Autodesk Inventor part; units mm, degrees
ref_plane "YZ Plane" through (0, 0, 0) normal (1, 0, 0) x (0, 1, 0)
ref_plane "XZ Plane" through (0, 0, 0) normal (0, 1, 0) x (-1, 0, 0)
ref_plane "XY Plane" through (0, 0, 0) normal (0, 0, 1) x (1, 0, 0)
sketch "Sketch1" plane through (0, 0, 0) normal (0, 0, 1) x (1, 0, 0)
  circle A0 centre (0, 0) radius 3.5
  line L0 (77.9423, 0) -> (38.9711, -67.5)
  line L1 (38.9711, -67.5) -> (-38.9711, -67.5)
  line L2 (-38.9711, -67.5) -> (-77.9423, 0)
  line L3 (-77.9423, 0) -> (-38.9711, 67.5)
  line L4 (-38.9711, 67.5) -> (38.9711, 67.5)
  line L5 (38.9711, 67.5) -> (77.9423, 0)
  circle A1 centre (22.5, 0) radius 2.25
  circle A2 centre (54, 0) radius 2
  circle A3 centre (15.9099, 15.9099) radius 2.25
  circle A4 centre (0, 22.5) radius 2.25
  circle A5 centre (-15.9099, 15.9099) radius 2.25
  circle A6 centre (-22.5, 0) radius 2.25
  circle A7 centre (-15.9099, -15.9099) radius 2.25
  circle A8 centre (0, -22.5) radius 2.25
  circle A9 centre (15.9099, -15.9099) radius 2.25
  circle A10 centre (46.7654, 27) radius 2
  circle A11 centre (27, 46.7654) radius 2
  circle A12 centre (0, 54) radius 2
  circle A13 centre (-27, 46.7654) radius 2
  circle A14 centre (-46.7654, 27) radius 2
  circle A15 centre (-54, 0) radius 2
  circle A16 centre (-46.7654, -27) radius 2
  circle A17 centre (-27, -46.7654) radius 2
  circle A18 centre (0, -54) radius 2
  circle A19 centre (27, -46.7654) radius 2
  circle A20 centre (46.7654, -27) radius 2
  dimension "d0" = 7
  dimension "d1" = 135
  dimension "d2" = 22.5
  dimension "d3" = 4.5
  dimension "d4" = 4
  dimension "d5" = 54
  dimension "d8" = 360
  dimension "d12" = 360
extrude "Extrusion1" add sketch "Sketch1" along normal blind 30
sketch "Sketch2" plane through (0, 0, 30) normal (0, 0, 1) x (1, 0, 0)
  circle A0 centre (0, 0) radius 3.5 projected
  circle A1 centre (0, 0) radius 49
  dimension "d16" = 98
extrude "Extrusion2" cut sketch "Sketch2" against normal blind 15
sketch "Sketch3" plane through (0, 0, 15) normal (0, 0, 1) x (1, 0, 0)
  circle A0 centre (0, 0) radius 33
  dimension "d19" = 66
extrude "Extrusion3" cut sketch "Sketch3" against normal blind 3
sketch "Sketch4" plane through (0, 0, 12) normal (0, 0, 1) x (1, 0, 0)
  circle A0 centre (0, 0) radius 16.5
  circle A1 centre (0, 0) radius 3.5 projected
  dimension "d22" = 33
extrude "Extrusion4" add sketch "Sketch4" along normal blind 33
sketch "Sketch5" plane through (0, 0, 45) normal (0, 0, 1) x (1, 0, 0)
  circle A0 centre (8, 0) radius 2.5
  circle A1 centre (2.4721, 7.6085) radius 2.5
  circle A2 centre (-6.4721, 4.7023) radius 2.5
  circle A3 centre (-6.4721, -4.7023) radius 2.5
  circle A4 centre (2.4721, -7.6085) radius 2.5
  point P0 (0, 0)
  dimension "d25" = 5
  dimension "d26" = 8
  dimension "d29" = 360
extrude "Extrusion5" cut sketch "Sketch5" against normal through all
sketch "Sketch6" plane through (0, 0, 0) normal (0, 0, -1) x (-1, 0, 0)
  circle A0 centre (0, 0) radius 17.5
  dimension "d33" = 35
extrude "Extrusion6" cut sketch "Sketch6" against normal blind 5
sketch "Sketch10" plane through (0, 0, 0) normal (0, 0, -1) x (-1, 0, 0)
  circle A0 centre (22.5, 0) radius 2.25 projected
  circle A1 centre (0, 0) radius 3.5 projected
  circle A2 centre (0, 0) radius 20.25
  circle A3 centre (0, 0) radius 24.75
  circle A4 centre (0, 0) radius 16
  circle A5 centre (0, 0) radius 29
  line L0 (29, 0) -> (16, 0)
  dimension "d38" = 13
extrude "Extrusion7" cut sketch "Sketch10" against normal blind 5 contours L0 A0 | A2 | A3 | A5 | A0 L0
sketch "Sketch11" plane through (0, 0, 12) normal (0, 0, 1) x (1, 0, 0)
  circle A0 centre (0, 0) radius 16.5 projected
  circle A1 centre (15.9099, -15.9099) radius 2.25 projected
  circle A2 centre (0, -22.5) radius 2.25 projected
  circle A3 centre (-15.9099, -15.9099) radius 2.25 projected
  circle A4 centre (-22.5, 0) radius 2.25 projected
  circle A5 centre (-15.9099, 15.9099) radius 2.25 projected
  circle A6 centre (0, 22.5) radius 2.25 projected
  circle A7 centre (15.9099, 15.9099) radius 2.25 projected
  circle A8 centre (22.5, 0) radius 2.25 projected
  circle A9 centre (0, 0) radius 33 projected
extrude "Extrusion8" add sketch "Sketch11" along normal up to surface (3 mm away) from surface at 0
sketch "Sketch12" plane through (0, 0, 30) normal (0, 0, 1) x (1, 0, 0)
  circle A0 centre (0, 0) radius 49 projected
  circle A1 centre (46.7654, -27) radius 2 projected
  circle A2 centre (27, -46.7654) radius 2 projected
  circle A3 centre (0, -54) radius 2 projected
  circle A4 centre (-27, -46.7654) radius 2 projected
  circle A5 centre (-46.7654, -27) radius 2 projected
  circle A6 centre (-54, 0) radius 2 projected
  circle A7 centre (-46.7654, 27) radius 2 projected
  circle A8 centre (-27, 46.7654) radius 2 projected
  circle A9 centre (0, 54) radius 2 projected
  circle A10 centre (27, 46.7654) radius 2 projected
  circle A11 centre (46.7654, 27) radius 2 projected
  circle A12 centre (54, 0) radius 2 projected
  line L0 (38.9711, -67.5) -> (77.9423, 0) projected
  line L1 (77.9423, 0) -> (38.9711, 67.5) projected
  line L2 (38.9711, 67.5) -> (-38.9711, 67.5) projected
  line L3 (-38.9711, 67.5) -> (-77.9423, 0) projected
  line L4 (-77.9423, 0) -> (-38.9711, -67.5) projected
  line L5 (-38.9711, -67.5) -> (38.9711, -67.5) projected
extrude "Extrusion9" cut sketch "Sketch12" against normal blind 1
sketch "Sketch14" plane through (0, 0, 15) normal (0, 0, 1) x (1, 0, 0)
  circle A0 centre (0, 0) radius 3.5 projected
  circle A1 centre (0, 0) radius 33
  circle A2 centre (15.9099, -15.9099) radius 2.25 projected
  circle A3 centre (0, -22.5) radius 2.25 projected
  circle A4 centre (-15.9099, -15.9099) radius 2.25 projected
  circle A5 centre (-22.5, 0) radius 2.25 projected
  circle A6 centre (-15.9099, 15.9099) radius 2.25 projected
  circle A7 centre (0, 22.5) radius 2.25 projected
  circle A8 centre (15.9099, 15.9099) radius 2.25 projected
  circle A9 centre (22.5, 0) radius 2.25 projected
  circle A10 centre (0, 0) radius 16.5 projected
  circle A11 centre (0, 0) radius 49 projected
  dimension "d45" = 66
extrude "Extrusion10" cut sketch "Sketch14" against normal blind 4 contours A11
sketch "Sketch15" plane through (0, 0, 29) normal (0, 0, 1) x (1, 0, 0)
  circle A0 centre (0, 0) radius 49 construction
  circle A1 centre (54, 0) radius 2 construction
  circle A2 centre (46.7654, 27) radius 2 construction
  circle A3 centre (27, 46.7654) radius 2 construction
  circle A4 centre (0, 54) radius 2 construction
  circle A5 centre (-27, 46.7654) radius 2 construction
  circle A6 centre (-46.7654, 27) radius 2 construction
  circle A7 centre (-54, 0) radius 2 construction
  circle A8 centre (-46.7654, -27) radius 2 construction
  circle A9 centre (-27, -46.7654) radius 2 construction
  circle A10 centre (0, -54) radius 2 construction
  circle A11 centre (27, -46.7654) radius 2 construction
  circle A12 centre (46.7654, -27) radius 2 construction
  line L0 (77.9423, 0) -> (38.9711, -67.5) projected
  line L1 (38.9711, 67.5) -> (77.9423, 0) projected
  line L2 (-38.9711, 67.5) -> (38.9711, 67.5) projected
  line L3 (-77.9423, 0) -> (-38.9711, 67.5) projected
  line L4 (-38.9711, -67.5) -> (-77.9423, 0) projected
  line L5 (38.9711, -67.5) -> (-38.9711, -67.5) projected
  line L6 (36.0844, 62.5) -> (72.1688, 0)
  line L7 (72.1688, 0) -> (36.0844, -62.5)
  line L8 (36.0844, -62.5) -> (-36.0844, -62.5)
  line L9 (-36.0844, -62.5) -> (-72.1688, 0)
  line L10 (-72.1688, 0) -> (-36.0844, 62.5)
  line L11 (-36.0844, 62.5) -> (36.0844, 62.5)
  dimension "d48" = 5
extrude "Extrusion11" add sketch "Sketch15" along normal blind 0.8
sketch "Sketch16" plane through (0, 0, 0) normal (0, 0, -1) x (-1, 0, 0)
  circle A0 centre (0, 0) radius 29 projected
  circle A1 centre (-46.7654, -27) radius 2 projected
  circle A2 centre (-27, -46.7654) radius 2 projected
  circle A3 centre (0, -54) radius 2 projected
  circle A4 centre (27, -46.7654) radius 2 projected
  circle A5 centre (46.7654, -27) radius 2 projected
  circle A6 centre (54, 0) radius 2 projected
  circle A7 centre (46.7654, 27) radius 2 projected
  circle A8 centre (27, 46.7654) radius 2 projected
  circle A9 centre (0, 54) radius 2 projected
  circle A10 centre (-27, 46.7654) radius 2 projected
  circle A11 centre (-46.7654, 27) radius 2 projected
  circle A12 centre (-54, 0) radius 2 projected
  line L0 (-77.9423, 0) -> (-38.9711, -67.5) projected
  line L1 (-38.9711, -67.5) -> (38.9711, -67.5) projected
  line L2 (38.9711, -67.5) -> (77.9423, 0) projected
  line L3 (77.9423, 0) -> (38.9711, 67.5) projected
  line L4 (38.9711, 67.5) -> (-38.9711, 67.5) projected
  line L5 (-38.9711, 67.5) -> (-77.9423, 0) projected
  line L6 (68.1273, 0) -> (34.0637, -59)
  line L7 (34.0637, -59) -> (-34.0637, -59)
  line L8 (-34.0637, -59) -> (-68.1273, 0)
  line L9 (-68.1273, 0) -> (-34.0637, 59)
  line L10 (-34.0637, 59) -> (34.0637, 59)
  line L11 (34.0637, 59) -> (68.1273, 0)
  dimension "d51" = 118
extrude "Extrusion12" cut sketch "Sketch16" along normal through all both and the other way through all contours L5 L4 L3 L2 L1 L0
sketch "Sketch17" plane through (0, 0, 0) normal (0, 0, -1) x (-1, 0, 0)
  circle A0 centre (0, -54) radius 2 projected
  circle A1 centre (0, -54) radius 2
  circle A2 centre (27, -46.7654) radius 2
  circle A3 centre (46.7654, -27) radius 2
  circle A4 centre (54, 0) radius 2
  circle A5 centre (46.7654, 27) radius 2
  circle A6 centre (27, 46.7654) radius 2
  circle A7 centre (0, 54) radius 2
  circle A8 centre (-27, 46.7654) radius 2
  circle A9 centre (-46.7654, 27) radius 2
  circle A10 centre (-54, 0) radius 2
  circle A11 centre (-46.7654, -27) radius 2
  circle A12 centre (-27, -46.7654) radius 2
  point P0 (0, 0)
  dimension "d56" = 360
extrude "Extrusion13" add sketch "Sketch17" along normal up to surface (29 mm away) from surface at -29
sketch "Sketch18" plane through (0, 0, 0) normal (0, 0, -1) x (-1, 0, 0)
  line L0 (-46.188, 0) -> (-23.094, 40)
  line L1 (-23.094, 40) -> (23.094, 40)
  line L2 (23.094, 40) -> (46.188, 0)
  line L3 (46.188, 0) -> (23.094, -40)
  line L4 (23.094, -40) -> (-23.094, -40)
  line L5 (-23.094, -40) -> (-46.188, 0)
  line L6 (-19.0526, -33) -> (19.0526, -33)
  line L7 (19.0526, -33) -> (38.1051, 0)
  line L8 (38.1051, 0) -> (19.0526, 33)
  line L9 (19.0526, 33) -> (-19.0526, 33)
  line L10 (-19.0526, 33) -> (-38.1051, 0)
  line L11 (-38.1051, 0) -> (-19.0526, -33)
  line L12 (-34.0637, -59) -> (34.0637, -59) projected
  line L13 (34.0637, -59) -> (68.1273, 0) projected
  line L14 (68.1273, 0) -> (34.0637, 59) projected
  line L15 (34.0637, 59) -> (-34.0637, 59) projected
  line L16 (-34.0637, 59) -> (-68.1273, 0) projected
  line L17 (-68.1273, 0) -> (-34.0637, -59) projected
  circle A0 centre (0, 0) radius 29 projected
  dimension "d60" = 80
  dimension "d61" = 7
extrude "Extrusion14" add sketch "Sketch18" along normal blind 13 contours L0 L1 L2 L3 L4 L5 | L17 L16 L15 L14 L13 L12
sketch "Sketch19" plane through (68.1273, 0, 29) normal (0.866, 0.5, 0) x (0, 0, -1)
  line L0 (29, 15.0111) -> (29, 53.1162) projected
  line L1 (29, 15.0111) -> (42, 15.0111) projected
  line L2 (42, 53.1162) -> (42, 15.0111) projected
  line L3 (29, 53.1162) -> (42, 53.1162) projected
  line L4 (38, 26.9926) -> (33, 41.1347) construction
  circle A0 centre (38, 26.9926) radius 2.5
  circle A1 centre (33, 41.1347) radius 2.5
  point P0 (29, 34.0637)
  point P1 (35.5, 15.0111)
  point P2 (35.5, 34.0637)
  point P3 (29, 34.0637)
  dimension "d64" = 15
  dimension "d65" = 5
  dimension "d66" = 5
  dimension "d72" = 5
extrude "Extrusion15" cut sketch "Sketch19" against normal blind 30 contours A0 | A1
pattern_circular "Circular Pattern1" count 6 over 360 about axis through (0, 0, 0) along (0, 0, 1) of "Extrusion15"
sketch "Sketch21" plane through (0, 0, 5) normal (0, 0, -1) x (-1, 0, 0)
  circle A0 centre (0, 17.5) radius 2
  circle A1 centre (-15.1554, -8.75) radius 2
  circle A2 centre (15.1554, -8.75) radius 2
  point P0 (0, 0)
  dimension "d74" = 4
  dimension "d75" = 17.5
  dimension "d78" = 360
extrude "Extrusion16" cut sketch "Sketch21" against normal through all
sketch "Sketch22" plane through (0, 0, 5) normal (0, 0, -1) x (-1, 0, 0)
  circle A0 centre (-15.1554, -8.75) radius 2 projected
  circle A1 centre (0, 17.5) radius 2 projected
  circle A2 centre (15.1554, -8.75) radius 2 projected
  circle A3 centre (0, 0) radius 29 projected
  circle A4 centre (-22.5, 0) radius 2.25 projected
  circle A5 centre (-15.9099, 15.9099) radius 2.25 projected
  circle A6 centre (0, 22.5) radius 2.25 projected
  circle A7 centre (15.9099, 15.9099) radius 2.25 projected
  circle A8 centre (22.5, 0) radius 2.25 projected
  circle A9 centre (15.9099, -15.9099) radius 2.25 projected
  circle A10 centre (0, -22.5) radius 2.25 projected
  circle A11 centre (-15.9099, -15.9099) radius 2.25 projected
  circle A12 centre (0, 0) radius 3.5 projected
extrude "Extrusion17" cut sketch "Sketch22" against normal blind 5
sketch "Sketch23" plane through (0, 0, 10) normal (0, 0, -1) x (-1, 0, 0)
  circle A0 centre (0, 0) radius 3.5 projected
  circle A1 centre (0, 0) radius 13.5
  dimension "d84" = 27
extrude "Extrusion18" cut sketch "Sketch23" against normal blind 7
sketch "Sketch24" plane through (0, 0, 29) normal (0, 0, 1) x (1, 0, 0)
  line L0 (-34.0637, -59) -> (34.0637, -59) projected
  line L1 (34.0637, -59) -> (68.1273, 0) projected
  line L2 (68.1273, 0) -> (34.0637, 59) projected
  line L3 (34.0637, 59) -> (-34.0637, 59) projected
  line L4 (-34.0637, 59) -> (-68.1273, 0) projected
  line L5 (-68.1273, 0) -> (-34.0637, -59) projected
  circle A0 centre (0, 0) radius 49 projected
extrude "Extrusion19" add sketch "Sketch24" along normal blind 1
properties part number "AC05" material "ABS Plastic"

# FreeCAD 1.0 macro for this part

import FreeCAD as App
import Part
import Sketcher
Q = App.Units.Quantity


def add_polygon(sketch, points):
    """Adds a closed chain of lines whose ends are joined by coincident constraints."""
    first, n = sketch.GeometryCount, len(points)
    for a, b in zip(points, points[1:] + points[:1]):
        sketch.addGeometry(Part.LineSegment(App.Vector(*a, 0), App.Vector(*b, 0)), False)
    for i in range(n):
        sketch.addConstraint(Sketcher.Constraint("Coincident", first + i, 2, first + (i + 1) % n, 1))

doc = App.newDocument("Part")
body = doc.addObject("PartDesign::Body", "Body")

sketch1 = body.newObject("Sketcher::SketchObject", "Sketch")
sketch1.AttachmentSupport = (doc.getObject("XY_Plane"), [""])
sketch1.MapMode = "FlatFace"
add_polygon(sketch1, [(39, -67.5), (77.9, 0), (39, 67.5), (-39, 67.5), (-77.9, 0), (-39, -67.5)])
sketch1.addGeometry(Part.Circle(App.Vector(-27, -46.8, 0), App.Vector(0, 0, 1), 2), False)
sketch1.addGeometry(Part.Circle(App.Vector(-46.8, -27, 0), App.Vector(0, 0, 1), 2), False)
sketch1.addGeometry(Part.Circle(App.Vector(-15.9, -15.9, 0), App.Vector(0, 0, 1), 2.2), False)
sketch1.addGeometry(Part.Circle(App.Vector(0, -54, 0), App.Vector(0, 0, 1), 2), False)
sketch1.addGeometry(Part.Circle(App.Vector(27, -46.8, 0), App.Vector(0, 0, 1), 2), False)
sketch1.addGeometry(Part.Circle(App.Vector(0, -22.5, 0), App.Vector(0, 0, 1), 2.2), False)
sketch1.addGeometry(Part.Circle(App.Vector(15.9, -15.9, 0), App.Vector(0, 0, 1), 2.2), False)
sketch1.addGeometry(Part.Circle(App.Vector(46.8, -27, 0), App.Vector(0, 0, 1), 2), False)
sketch1.addGeometry(Part.Circle(App.Vector(-54, 0, 0), App.Vector(0, 0, 1), 2), False)
sketch1.addGeometry(Part.Circle(App.Vector(-46.8, 27, 0), App.Vector(0, 0, 1), 2), False)
sketch1.addGeometry(Part.Circle(App.Vector(-22.5, 0, 0), App.Vector(0, 0, 1), 2.2), False)
sketch1.addGeometry(Part.Circle(App.Vector(-15.9, 15.9, 0), App.Vector(0, 0, 1), 2.2), False)
sketch1.addGeometry(Part.Circle(App.Vector(-27, 46.8, 0), App.Vector(0, 0, 1), 2), False)
sketch1.addGeometry(Part.Circle(App.Vector(0, 0, 0), App.Vector(0, 0, 1), 3.5), False)
sketch1.addGeometry(Part.Circle(App.Vector(15.9, 15.9, 0), App.Vector(0, 0, 1), 2.2), False)
sketch1.addGeometry(Part.Circle(App.Vector(22.5, 0, 0), App.Vector(0, 0, 1), 2.2), False)
sketch1.addGeometry(Part.Circle(App.Vector(0, 22.5, 0), App.Vector(0, 0, 1), 2.2), False)
sketch1.addGeometry(Part.Circle(App.Vector(54, 0, 0), App.Vector(0, 0, 1), 2), False)
sketch1.addGeometry(Part.Circle(App.Vector(46.8, 27, 0), App.Vector(0, 0, 1), 2), False)
sketch1.addGeometry(Part.Circle(App.Vector(27, 46.8, 0), App.Vector(0, 0, 1), 2), False)
sketch1.addGeometry(Part.Circle(App.Vector(0, 54, 0), App.Vector(0, 0, 1), 2), False)
sketch1.addConstraint([
    Sketcher.Constraint("Horizontal", 2),
    Sketcher.Constraint("Horizontal", 5),
    Sketcher.Constraint("Coincident", 19, 3, -1, 1),
    Sketcher.Constraint("Equal", 6, 7),
    Sketcher.Constraint("Equal", 7, 9),
    Sketcher.Constraint("Equal", 9, 10),
    Sketcher.Constraint("Equal", 8, 11),
    Sketcher.Constraint("Equal", 11, 12),
    Sketcher.Constraint("Equal", 10, 13),
    Sketcher.Constraint("Equal", 13, 14),
    Sketcher.Constraint("Equal", 14, 15),
    Sketcher.Constraint("Equal", 12, 16),
    Sketcher.Constraint("Equal", 16, 17),
    Sketcher.Constraint("Equal", 15, 18),
    Sketcher.Constraint("Equal", 17, 20),
    Sketcher.Constraint("Equal", 20, 21),
    Sketcher.Constraint("Equal", 21, 22),
    Sketcher.Constraint("Equal", 18, 23),
    Sketcher.Constraint("Equal", 23, 24),
    Sketcher.Constraint("Equal", 24, 25),
    Sketcher.Constraint("Equal", 25, 26),
    Sketcher.Constraint("Symmetric", 13, 3, 15, 3, -1, 1),
    Sketcher.Constraint("Symmetric", 12, 3, 17, 3, -1, 1),
    Sketcher.Constraint("Symmetric", 10, 3, 18, 3, -1, 1),
    Sketcher.Constraint("Symmetric", 8, 3, 20, 3, -1, 1),
    Sketcher.Constraint("Symmetric", 16, 3, 21, 3, -1, 1),
    Sketcher.Constraint("Symmetric", 11, 3, 22, 3, -1, 1),
    Sketcher.Constraint("Symmetric", 14, 3, 23, 3, -1, 1),
    Sketcher.Constraint("Symmetric", 7, 3, 24, 3, -1, 1),
    Sketcher.Constraint("Symmetric", 6, 3, 25, 3, -1, 1),
    Sketcher.Constraint("Symmetric", 9, 3, 26, 3, -1, 1),
    Sketcher.Constraint("Symmetric", 0, 2, 3, 2, -1, 1),
    Sketcher.Constraint("Symmetric", 1, 2, 4, 2, -1, 1),
    Sketcher.Constraint("Symmetric", 6, 3, 10, 3, -2),
    Sketcher.Constraint("Symmetric", 8, 3, 12, 3, -2),
    Sketcher.Constraint("Symmetric", 7, 3, 13, 3, -2),
    Sketcher.Constraint("PointOnObject", 9, 3, -2),
    Sketcher.Constraint("PointOnObject", 11, 3, -2),
    Sketcher.Constraint("PointOnObject", 14, 3, -1),
    Sketcher.Constraint("PointOnObject", 16, 3, -1),
    Sketcher.Constraint("PointOnObject", 0, 2, -1),
    Sketcher.Constraint("Parallel", 0, 3),
    Sketcher.Constraint("Vertical", 2, 2, 4, 2),
    Sketcher.Constraint("Diameter", 6, 4.0),
    Sketcher.Constraint("Diameter", 19, 7.0),
    Sketcher.Constraint("Diameter", 8, 4.5),
    Sketcher.Constraint("DistanceY", 9, 3, -1, 1, 54.0),
    Sketcher.Constraint("DistanceX", 14, 3, -1, 1, 54.0),
    Sketcher.Constraint("DistanceX", 6, 3, 10, 3, 54.0),
    Sketcher.Constraint("DistanceY", 7, 3, 15, 3, 54.0),
    Sketcher.Constraint("DistanceY", 11, 3, -1, 1, 22.5),
    Sketcher.Constraint("DistanceX", 16, 3, -1, 1, 22.5),
    Sketcher.Constraint("Angle", 0, Q("60 deg")),
    Sketcher.Constraint("DistanceY", 22, 3, 1, 2, 45.0),
    Sketcher.Constraint("DistanceX", 8, 3, -1, 1, 15.91),
    Sketcher.Constraint("DistanceY", 8, 3, -1, 1, 15.91),
    Sketcher.Constraint("DistanceX", 2, 2, 2, 1, 77.9422),
    Sketcher.Constraint("DistanceX", 13, 3, 0, 2, 31.177),
    Sketcher.Constraint("DistanceY", 6, 3, -1, 1, 46.7654),
])
pad1 = body.newObject("PartDesign::Pad", "Pad")
pad1.Profile = sketch1
pad1.Length = 30

sketch2 = body.newObject("Sketcher::SketchObject", "Sketch001")
sketch2.AttachmentSupport = (doc.getObject("XY_Plane"), [""])
sketch2.MapMode = "FlatFace"
sketch2.AttachmentOffset = App.Placement(App.Vector(0, 0, 30), App.Rotation())
sketch2.addGeometry([
    Part.Circle(App.Vector(0, 0, 0), App.Vector(0, 0, 1), 49),
    Part.Circle(App.Vector(0, 0, 0), App.Vector(0, 0, 1), 3.5),
], False)
sketch2.addConstraint([
    Sketcher.Constraint("Coincident", 0, 3, -1, 1),
    Sketcher.Constraint("Coincident", 1, 3, -1, 1),
    Sketcher.Constraint("Diameter", 0, 98.0),
    Sketcher.Constraint("Diameter", 1, 7.0),
])
pocket1 = body.newObject("PartDesign::Pocket", "Pocket")
pocket1.Profile = sketch2
pocket1.Length = 15

sketch3 = body.newObject("Sketcher::SketchObject", "Sketch002")
sketch3.AttachmentSupport = (doc.getObject("XY_Plane"), [""])
sketch3.MapMode = "FlatFace"
sketch3.AttachmentOffset = App.Placement(App.Vector(0, 0, 15), App.Rotation())
sketch3.addGeometry(Part.Circle(App.Vector(0, 0, 0), App.Vector(0, 0, 1), 33), False)
sketch3.addConstraint([
    Sketcher.Constraint("Coincident", 0, 3, -1, 1),
    Sketcher.Constraint("Diameter", 0, 66.0),
])
pocket2 = body.newObject("PartDesign::Pocket", "Pocket001")
pocket2.Profile = sketch3
pocket2.Length = 3

sketch4 = body.newObject("Sketcher::SketchObject", "Sketch003")
sketch4.AttachmentSupport = (doc.getObject("XY_Plane"), [""])
sketch4.MapMode = "FlatFace"
sketch4.AttachmentOffset = App.Placement(App.Vector(0, 0, 12), App.Rotation())
sketch4.addGeometry([
    Part.Circle(App.Vector(0, 0, 0), App.Vector(0, 0, 1), 16.5),
    Part.Circle(App.Vector(0, 0, 0), App.Vector(0, 0, 1), 3.5),
], False)
sketch4.addConstraint([
    Sketcher.Constraint("Coincident", 0, 3, -1, 1),
    Sketcher.Constraint("Coincident", 1, 3, -1, 1),
    Sketcher.Constraint("Diameter", 0, 33.0),
    Sketcher.Constraint("Diameter", 1, 7.0),
])
pad2 = body.newObject("PartDesign::Pad", "Pad001")
pad2.Profile = sketch4
pad2.Length = 33

sketch5 = body.newObject("Sketcher::SketchObject", "Sketch004")
sketch5.AttachmentSupport = (doc.getObject("XY_Plane"), [""])
sketch5.MapMode = "FlatFace"
sketch5.AttachmentOffset = App.Placement(App.Vector(0, 0, 45), App.Rotation())
sketch5.addGeometry([
    Part.Circle(App.Vector(8, 0, 0), App.Vector(0, 0, 1), 2.5),
    Part.Circle(App.Vector(2.5, 7.6, 0), App.Vector(0, 0, 1), 2.5),
    Part.Circle(App.Vector(-6.5, 4.7, 0), App.Vector(0, 0, 1), 2.5),
    Part.Circle(App.Vector(-6.5, -4.7, 0), App.Vector(0, 0, 1), 2.5),
    Part.Circle(App.Vector(2.5, -7.6, 0), App.Vector(0, 0, 1), 2.5),
], False)
sketch5.addConstraint([
    Sketcher.Constraint("Equal", 0, 1),
    Sketcher.Constraint("Equal", 1, 2),
    Sketcher.Constraint("Equal", 2, 3),
    Sketcher.Constraint("Equal", 3, 4),
    Sketcher.Constraint("Symmetric", 2, 3, 3, 3, -1),
    Sketcher.Constraint("Symmetric", 1, 3, 4, 3, -1),
    Sketcher.Constraint("PointOnObject", 0, 3, -1),
    Sketcher.Constraint("Diameter", 0, 5.0),
    Sketcher.Constraint("DistanceX", -1, 1, 0, 3, 8.0),
    Sketcher.Constraint("DistanceX", -1, 1, 1, 3, 2.472),
    Sketcher.Constraint("DistanceX", 2, 3, -1, 1, 6.472),
    Sketcher.Constraint("DistanceY", 4, 3, 1, 3, 15.217),
    Sketcher.Constraint("DistanceY", -1, 1, 2, 3, 4.7023),
])
pocket3 = body.newObject("PartDesign::Pocket", "Pocket002")
pocket3.Profile = sketch5
pocket3.Type = "ThroughAll"

sketch6 = body.newObject("Sketcher::SketchObject", "Sketch005")
sketch6.AttachmentSupport = (doc.getObject("XY_Plane"), [""])
sketch6.MapMode = "FlatFace"
sketch6.addGeometry(Part.Circle(App.Vector(0, 0, 0), App.Vector(0, 0, 1), 18), False)
sketch6.addConstraint([
    Sketcher.Constraint("Coincident", 0, 3, -1, 1),
    Sketcher.Constraint("Diameter", 0, 35.0),
])
pocket4 = body.newObject("PartDesign::Pocket", "Pocket003")
pocket4.Profile = sketch6
pocket4.Length = 5
pocket4.Reversed = True

sketch7 = body.newObject("Sketcher::SketchObject", "Sketch006")
sketch7.AttachmentSupport = (doc.getObject("XY_Plane"), [""])
sketch7.MapMode = "FlatFace"
sketch7.addGeometry([
    Part.Circle(App.Vector(0, 0, 0), App.Vector(0, 0, 1), 29),
    Part.Circle(App.Vector(0, 0, 0), App.Vector(0, 0, 1), 16),
], False)
sketch7.addConstraint([
    Sketcher.Constraint("Coincident", 0, 3, -1, 1),
    Sketcher.Constraint("Coincident", 1, 3, -1, 1),
    Sketcher.Constraint("Diameter", 0, 58.0),
    Sketcher.Constraint("Diameter", 1, 32.0),
])
pocket5 = body.newObject("PartDesign::Pocket", "Pocket004")
pocket5.Profile = sketch7
pocket5.Length = 5
pocket5.Reversed = True

sketch8 = body.newObject("Sketcher::SketchObject", "Sketch007")
sketch8.AttachmentSupport = (doc.getObject("XY_Plane"), [""])
sketch8.MapMode = "FlatFace"
sketch8.AttachmentOffset = App.Placement(App.Vector(0, 0, 12), App.Rotation())
sketch8.addGeometry([
    Part.Circle(App.Vector(0, 0, 0), App.Vector(0, 0, 1), 33),
    Part.Circle(App.Vector(-15.9, -15.9, 0), App.Vector(0, 0, 1), 2.2),
    Part.Circle(App.Vector(0, -22.5, 0), App.Vector(0, 0, 1), 2.2),
    Part.Circle(App.Vector(15.9, -15.9, 0), App.Vector(0, 0, 1), 2.2),
    Part.Circle(App.Vector(-22.5, 0, 0), App.Vector(0, 0, 1), 2.2),
    Part.Circle(App.Vector(-15.9, 15.9, 0), App.Vector(0, 0, 1), 2.2),
    Part.Circle(App.Vector(0, 0, 0), App.Vector(0, 0, 1), 16.5),
    Part.Circle(App.Vector(15.9, 15.9, 0), App.Vector(0, 0, 1), 2.2),
    Part.Circle(App.Vector(22.5, 0, 0), App.Vector(0, 0, 1), 2.2),
    Part.Circle(App.Vector(0, 22.5, 0), App.Vector(0, 0, 1), 2.2),
], False)
sketch8.addConstraint([
    Sketcher.Constraint("Coincident", 0, 3, -1, 1),
    Sketcher.Constraint("Coincident", 6, 3, -1, 1),
    Sketcher.Constraint("Equal", 1, 2),
    Sketcher.Constraint("Equal", 2, 3),
    Sketcher.Constraint("Equal", 3, 4),
    Sketcher.Constraint("Equal", 4, 5),
    Sketcher.Constraint("Equal", 5, 7),
    Sketcher.Constraint("Equal", 7, 8),
    Sketcher.Constraint("Equal", 8, 9),
    Sketcher.Constraint("Symmetric", 3, 3, 5, 3, -1, 1),
    Sketcher.Constraint("Symmetric", 1, 3, 7, 3, -1, 1),
    Sketcher.Constraint("Symmetric", 4, 3, 8, 3, -1, 1),
    Sketcher.Constraint("Symmetric", 2, 3, 9, 3, -1, 1),
    Sketcher.Constraint("Symmetric", 1, 3, 3, 3, -2),
    Sketcher.Constraint("PointOnObject", 2, 3, -2),
    Sketcher.Constraint("PointOnObject", 4, 3, -1),
    Sketcher.Constraint("Diameter", 0, 66.0),
    Sketcher.Constraint("Diameter", 6, 33.0),
    Sketcher.Constraint("Diameter", 1, 4.5),
    Sketcher.Constraint("DistanceY", 2, 3, -1, 1, 22.5),
    Sketcher.Constraint("DistanceX", 4, 3, -1, 1, 22.5),
    Sketcher.Constraint("DistanceX", 1, 3, -1, 1, 15.91),
    Sketcher.Constraint("DistanceY", 1, 3, -1, 1, 15.91),
])
pad3 = body.newObject("PartDesign::Pad", "Pad002")
pad3.Profile = sketch8
pad3.Length = 3

sketch9 = body.newObject("Sketcher::SketchObject", "Sketch008")
sketch9.AttachmentSupport = (doc.getObject("XY_Plane"), [""])
sketch9.MapMode = "FlatFace"
sketch9.AttachmentOffset = App.Placement(App.Vector(0, 0, 30), App.Rotation())
add_polygon(sketch9, [(-39, -67.5), (39, -67.5), (77.9, 0), (39, 67.5), (-39, 67.5), (-77.9, 0)])
sketch9.addGeometry(Part.Circle(App.Vector(-27, -46.8, 0), App.Vector(0, 0, 1), 2), False)
sketch9.addGeometry(Part.Circle(App.Vector(-46.8, -27, 0), App.Vector(0, 0, 1), 2), False)
sketch9.addGeometry(Part.Circle(App.Vector(0, -54, 0), App.Vector(0, 0, 1), 2), False)
sketch9.addGeometry(Part.Circle(App.Vector(27, -46.8, 0), App.Vector(0, 0, 1), 2), False)
sketch9.addGeometry(Part.Circle(App.Vector(46.8, -27, 0), App.Vector(0, 0, 1), 2), False)
sketch9.addGeometry(Part.Circle(App.Vector(-54, 0, 0), App.Vector(0, 0, 1), 2), False)
sketch9.addGeometry(Part.Circle(App.Vector(-46.8, 27, 0), App.Vector(0, 0, 1), 2), False)
sketch9.addGeometry(Part.Circle(App.Vector(-27, 46.8, 0), App.Vector(0, 0, 1), 2), False)
sketch9.addGeometry(Part.Circle(App.Vector(0, 0, 0), App.Vector(0, 0, 1), 49), False)
sketch9.addGeometry(Part.Circle(App.Vector(54, 0, 0), App.Vector(0, 0, 1), 2), False)
sketch9.addGeometry(Part.Circle(App.Vector(46.8, 27, 0), App.Vector(0, 0, 1), 2), False)
sketch9.addGeometry(Part.Circle(App.Vector(27, 46.8, 0), App.Vector(0, 0, 1), 2), False)
sketch9.addGeometry(Part.Circle(App.Vector(0, 54, 0), App.Vector(0, 0, 1), 2), False)
sketch9.addConstraint([
    Sketcher.Constraint("Horizontal", 0),
    Sketcher.Constraint("Horizontal", 3),
    Sketcher.Constraint("Coincident", 14, 3, -1, 1),
    Sketcher.Constraint("Equal", 6, 7),
    Sketcher.Constraint("Equal", 7, 8),
    Sketcher.Constraint("Equal", 8, 9),
    Sketcher.Constraint("Equal", 9, 10),
    Sketcher.Constraint("Equal", 10, 11),
    Sketcher.Constraint("Equal", 11, 12),
    Sketcher.Constraint("Equal", 12, 13),
    Sketcher.Constraint("Equal", 13, 15),
    Sketcher.Constraint("Equal", 15, 16),
    Sketcher.Constraint("Equal", 16, 17),
    Sketcher.Constraint("Equal", 17, 18),
    Sketcher.Constraint("Symmetric", 10, 3, 12, 3, -1, 1),
    Sketcher.Constraint("Symmetric", 9, 3, 13, 3, -1, 1),
    Sketcher.Constraint("Symmetric", 11, 3, 15, 3, -1, 1),
    Sketcher.Constraint("Symmetric", 7, 3, 16, 3, -1, 1),
    Sketcher.Constraint("Symmetric", 6, 3, 17, 3, -1, 1),
    Sketcher.Constraint("Symmetric", 8, 3, 18, 3, -1, 1),
    Sketcher.Constraint("Symmetric", 0, 2, 3, 2, -1, 1),
    Sketcher.Constraint("Symmetric", 1, 2, 4, 2, -1, 1),
    Sketcher.Constraint("Symmetric", 6, 3, 9, 3, -2),
    Sketcher.Constraint("Symmetric", 7, 3, 10, 3, -2),
    Sketcher.Constraint("PointOnObject", 8, 3, -2),
    Sketcher.Constraint("PointOnObject", 11, 3, -1),
    Sketcher.Constraint("PointOnObject", 1, 2, -1),
    Sketcher.Constraint("Parallel", 2, 5),
    Sketcher.Constraint("Vertical", 0, 2, 2, 2),
    Sketcher.Constraint("Diameter", 6, 4.0),
    Sketcher.Constraint("Diameter", 14, 98.0),
    Sketcher.Constraint("Angle", 1, Q("60 deg")),
    Sketcher.Constraint("DistanceX", 6, 3, -1, 1, 27.0),
    Sketcher.Constraint("DistanceY", 7, 3, -1, 1, 27.0),
    Sketcher.Constraint("DistanceY", 8, 3, -1, 1, 54.0),
    Sketcher.Constraint("DistanceX", 11, 3, -1, 1, 54.0),
    Sketcher.Constraint("DistanceY", 0, 2, -1, 1, 67.5),
    Sketcher.Constraint("DistanceX", 0, 1, 0, 2, 77.9422),
    Sketcher.Constraint("DistanceX", 10, 3, 1, 2, 31.177),
    Sketcher.Constraint("DistanceY", 6, 3, -1, 1, 46.7654),
])
pocket6 = body.newObject("PartDesign::Pocket", "Pocket005")
pocket6.Profile = sketch9
pocket6.Length = 1

sketch10 = body.newObject("Sketcher::SketchObject", "Sketch009")
sketch10.AttachmentSupport = (doc.getObject("XY_Plane"), [""])
sketch10.MapMode = "FlatFace"
sketch10.AttachmentOffset = App.Placement(App.Vector(0, 0, 15), App.Rotation())
sketch10.addGeometry([
    Part.Circle(App.Vector(0, 0, 0), App.Vector(0, 0, 1), 49),
    Part.Circle(App.Vector(0, 0, 0), App.Vector(0, 0, 1), 33),
], False)
sketch10.addConstraint([
    Sketcher.Constraint("Coincident", 0, 3, -1, 1),
    Sketcher.Constraint("Coincident", 1, 3, -1, 1),
    Sketcher.Constraint("Diameter", 1, 66.0),
    Sketcher.Constraint("Diameter", 0, 98.0),
])
pocket7 = body.newObject("PartDesign::Pocket", "Pocket006")
pocket7.Profile = sketch10
pocket7.Length = 4

sketch11 = body.newObject("Sketcher::SketchObject", "Sketch010")
sketch11.AttachmentSupport = (doc.getObject("XY_Plane"), [""])
sketch11.MapMode = "FlatFace"
sketch11.AttachmentOffset = App.Placement(App.Vector(0, 0, 29), App.Rotation())
add_polygon(sketch11, [(39, -68), (78, 0), (39, 68), (-39, 68), (-78, 0), (-39, -68)])
add_polygon(sketch11, [(-36, 62), (36, 62), (72, 0), (36, -62), (-36, -62), (-72, 0)])
sketch11.addConstraint([
    Sketcher.Constraint("Horizontal", 2),
    Sketcher.Constraint("Horizontal", 5),
    Sketcher.Constraint("Horizontal", 6),
    Sketcher.Constraint("Horizontal", 9),
    Sketcher.Constraint("Symmetric", 0, 2, 3, 2, -1, 1),
    Sketcher.Constraint("Symmetric", 1, 2, 4, 2, -1, 1),
    Sketcher.Constraint("Symmetric", 6, 2, 9, 2, -1, 1),
    Sketcher.Constraint("Symmetric", 7, 2, 10, 2, -1, 1),
    Sketcher.Constraint("PointOnObject", 0, 2, -1),
    Sketcher.Constraint("PointOnObject", 7, 2, -1),
    Sketcher.Constraint("Parallel", 0, 3),
    Sketcher.Constraint("Parallel", 4, 7),
    Sketcher.Constraint("Parallel", 3, 8),
    Sketcher.Constraint("Parallel", 8, 11),
    Sketcher.Constraint("Vertical", 2, 2, 4, 2),
    Sketcher.Constraint("DistanceY", 6, 2, 1, 2, 5.0),
    Sketcher.Constraint("Angle", 0, Q("60 deg")),
    Sketcher.Constraint("DistanceY", 4, 2, 2, 2, 135.0),
    Sketcher.Constraint("DistanceX", 2, 2, 7, 2, 111.14),
    Sketcher.Constraint("DistanceX", 2, 2, 2, 1, 77.9422),
])
pad4 = body.newObject("PartDesign::Pad", "Pad003")
pad4.Profile = sketch11
pad4.Length = 0.8

sketch12 = body.newObject("Sketcher::SketchObject", "Sketch011")
sketch12.AttachmentSupport = (doc.getObject("XY_Plane"), [""])
sketch12.MapMode = "FlatFace"
add_polygon(sketch12, [(39, 68), (78, 0), (39, -68), (-39, -68), (-78, 0), (-39, 68)])
add_polygon(sketch12, [(-34, 59), (-68, 0), (-34, -59), (34, -59), (68, 0), (34, 59)])
sketch12.addConstraint([
    Sketcher.Constraint("Horizontal", 2),
    Sketcher.Constraint("Horizontal", 5),
    Sketcher.Constraint("Horizontal", 8),
    Sketcher.Constraint("Horizontal", 11),
    Sketcher.Constraint("Symmetric", 0, 2, 3, 2, -1, 1),
    Sketcher.Constraint("Symmetric", 1, 2, 4, 2, -1, 1),
    Sketcher.Constraint("Symmetric", 6, 2, 9, 2, -1, 1),
    Sketcher.Constraint("Symmetric", 7, 2, 10, 2, -1, 1),
    Sketcher.Constraint("PointOnObject", 0, 2, -1),
    Sketcher.Constraint("PointOnObject", 6, 2, -1),
    Sketcher.Constraint("Parallel", 0, 3),
    Sketcher.Constraint("Parallel", 4, 6),
    Sketcher.Constraint("Parallel", 3, 7),
    Sketcher.Constraint("Parallel", 6, 9),
    Sketcher.Constraint("Vertical", 2, 2, 4, 2),
    Sketcher.Constraint("DistanceY", 8, 2, 10, 2, 118.0),
    Sketcher.Constraint("Angle", 0, Q("-60 deg")),
    Sketcher.Constraint("DistanceY", 2, 2, 4, 2, 135.0),
    Sketcher.Constraint("DistanceX", 2, 2, 2, 1, 77.9422),
    Sketcher.Constraint("DistanceX", 8, 1, 8, 2, 68.1274),
])
pocket8 = body.newObject("PartDesign::Pocket", "Pocket007")
pocket8.Profile = sketch12
pocket8.Type = "ThroughAll"
pocket8.Midplane = True

sketch13 = body.newObject("Sketcher::SketchObject", "Sketch012")
sketch13.AttachmentSupport = (doc.getObject("XY_Plane"), [""])
sketch13.MapMode = "FlatFace"
sketch13.AttachmentOffset = App.Placement(App.Vector(0, 0, 29), App.Rotation())
sketch13.addGeometry([
    Part.Circle(App.Vector(0, -54, 0), App.Vector(0, 0, 1), 2),
    Part.Circle(App.Vector(-27, -46.8, 0), App.Vector(0, 0, 1), 2),
    Part.Circle(App.Vector(-46.8, -27, 0), App.Vector(0, 0, 1), 2),
    Part.Circle(App.Vector(-54, 0, 0), App.Vector(0, 0, 1), 2),
    Part.Circle(App.Vector(-46.8, 27, 0), App.Vector(0, 0, 1), 2),
    Part.Circle(App.Vector(-27, 46.8, 0), App.Vector(0, 0, 1), 2),
    Part.Circle(App.Vector(0, 54, 0), App.Vector(0, 0, 1), 2),
    Part.Circle(App.Vector(27, 46.8, 0), App.Vector(0, 0, 1), 2),
    Part.Circle(App.Vector(46.8, 27, 0), App.Vector(0, 0, 1), 2),
    Part.Circle(App.Vector(54, 0, 0), App.Vector(0, 0, 1), 2),
    Part.Circle(App.Vector(46.8, -27, 0), App.Vector(0, 0, 1), 2),
    Part.Circle(App.Vector(27, -46.8, 0), App.Vector(0, 0, 1), 2),
], False)
sketch13.addConstraint([
    Sketcher.Constraint("Equal", 0, 1),
    Sketcher.Constraint("Equal", 1, 2),
    Sketcher.Constraint("Equal", 2, 3),
    Sketcher.Constraint("Equal", 3, 4),
    Sketcher.Constraint("Equal", 4, 5),
    Sketcher.Constraint("Equal", 5, 6),
    Sketcher.Constraint("Equal", 6, 7),
    Sketcher.Constraint("Equal", 7, 8),
    Sketcher.Constraint("Equal", 8, 9),
    Sketcher.Constraint("Equal", 9, 10),
    Sketcher.Constraint("Equal", 10, 11),
    Sketcher.Constraint("Symmetric", 0, 3, 6, 3, -1, 1),
    Sketcher.Constraint("Symmetric", 1, 3, 7, 3, -1, 1),
    Sketcher.Constraint("Symmetric", 2, 3, 8, 3, -1, 1),
    Sketcher.Constraint("Symmetric", 3, 3, 9, 3, -1, 1),
    Sketcher.Constraint("Symmetric", 4, 3, 10, 3, -1, 1),
    Sketcher.Constraint("Symmetric", 5, 3, 11, 3, -1, 1),
    Sketcher.Constraint("Symmetric", 5, 3, 7, 3, -2),
    Sketcher.Constraint("Symmetric", 4, 3, 8, 3, -2),
    Sketcher.Constraint("PointOnObject", 0, 3, -2),
    Sketcher.Constraint("PointOnObject", 3, 3, -1),
    Sketcher.Constraint("Diameter", 0, 4.0),
    Sketcher.Constraint("DistanceY", 0, 3, -1, 1, 54.0),
    Sketcher.Constraint("DistanceX", 1, 3, -1, 1, 27.0),
    Sketcher.Constraint("DistanceY", 2, 3, -1, 1, 27.0),
    Sketcher.Constraint("DistanceX", 3, 3, -1, 1, 54.0),
    Sketcher.Constraint("DistanceY", 1, 3, -1, 1, 46.7654),
    Sketcher.Constraint("DistanceX", 2, 3, -1, 1, 46.7654),
])
pad5 = body.newObject("PartDesign::Pad", "Pad004")
pad5.Profile = sketch13
pad5.Length = 29
pad5.Reversed = True

sketch14 = body.newObject("Sketcher::SketchObject", "Sketch013")
sketch14.AttachmentSupport = (doc.getObject("XY_Plane"), [""])
sketch14.MapMode = "FlatFace"
add_polygon(sketch14, [(68, 0), (34, -59), (-34, -59), (-68, 0), (-34, 59), (34, 59)])
add_polygon(sketch14, [(-19, -33), (19, -33), (38, 0), (19, 33), (-19, 33), (-38, 0)])
sketch14.addConstraint([
    Sketcher.Constraint("Horizontal", 1),
    Sketcher.Constraint("Horizontal", 4),
    Sketcher.Constraint("Horizontal", 6),
    Sketcher.Constraint("Horizontal", 9),
    Sketcher.Constraint("Symmetric", 0, 2, 3, 2, -1, 1),
    Sketcher.Constraint("Symmetric", 2, 2, 5, 2, -1, 1),
    Sketcher.Constraint("Symmetric", 6, 2, 9, 2, -1, 1),
    Sketcher.Constraint("Symmetric", 7, 2, 10, 2, -1, 1),
    Sketcher.Constraint("PointOnObject", 2, 2, -1),
    Sketcher.Constraint("PointOnObject", 7, 2, -1),
    Sketcher.Constraint("Parallel", 2, 5),
    Sketcher.Constraint("Parallel", 3, 7),
    Sketcher.Constraint("Parallel", 5, 8),
    Sketcher.Constraint("Parallel", 8, 11),
    Sketcher.Constraint("Vertical", 1, 2, 3, 2),
    Sketcher.Constraint("Angle", 0, Q("-120 deg")),
    Sketcher.Constraint("DistanceY", 0, 2, -1, 1, 59.0),
    Sketcher.Constraint("DistanceY", 6, 2, -1, 1, 33.0),
    Sketcher.Constraint("DistanceX", 2, 2, 6, 2, 87.18),
    Sketcher.Constraint("DistanceX", 1, 2, 1, 1, 68.1274),
])
pad6 = body.newObject("PartDesign::Pad", "Pad005")
pad6.Profile = sketch14
pad6.Length = 13
pad6.Reversed = True

sketch15 = body.newObject("Sketcher::SketchObject", "Sketch014")
sketch15.Placement = App.Placement(App.Vector(68.1273, 0, 29), App.Rotation(App.Vector(0, 0, -1), App.Vector(-0.5, 0.866025404, 0), App.Vector(0.866025404, 0.5, 0), "ZXY"))
sketch15.addGeometry([
    Part.Circle(App.Vector(38, 27, 0), App.Vector(0, 0, 1), 2.5),
    Part.Circle(App.Vector(33, 41.1, 0), App.Vector(0, 0, 1), 2.5),
], False)
sketch15.addConstraint([
    Sketcher.Constraint("Equal", 0, 1),
    Sketcher.Constraint("Diameter", 0, 5.0),
    Sketcher.Constraint("DistanceX", 1, 3, 0, 3, 5.0),
    Sketcher.Constraint("DistanceX", -1, 1, 0, 3, 38.0),
    Sketcher.Constraint("DistanceY", 0, 3, 1, 3, 14.142),
    Sketcher.Constraint("DistanceY", -1, 1, 0, 3, 26.9926),
])
pocket9 = body.newObject("PartDesign::Pocket", "Pocket008")
pocket9.Profile = sketch15
pocket9.Length = 30
doc.recompute()

polarpattern = body.newObject("PartDesign::PolarPattern", "PolarPattern")
polarpattern.Originals = [pocket9]
polarpattern.Axis = (doc.getObject("Z_Axis"), [""])
polarpattern.Angle = 360
polarpattern.Occurrences = 6
body.Tip = polarpattern

sketch16 = body.newObject("Sketcher::SketchObject", "Sketch015")
sketch16.AttachmentSupport = (doc.getObject("XY_Plane"), [""])
sketch16.MapMode = "FlatFace"
sketch16.AttachmentOffset = App.Placement(App.Vector(0, 0, 5), App.Rotation())
sketch16.addGeometry([
    Part.Circle(App.Vector(0, 17.5, 0), App.Vector(0, 0, 1), 2),
    Part.Circle(App.Vector(15.2, -8.8, 0), App.Vector(0, 0, 1), 2),
    Part.Circle(App.Vector(-15.2, -8.8, 0), App.Vector(0, 0, 1), 2),
], False)
sketch16.addConstraint([
    Sketcher.Constraint("Equal", 0, 1),
    Sketcher.Constraint("Equal", 1, 2),
    Sketcher.Constraint("Symmetric", 1, 3, 2, 3, -2),
    Sketcher.Constraint("PointOnObject", 0, 3, -2),
    Sketcher.Constraint("Diameter", 0, 4.0),
    Sketcher.Constraint("DistanceY", -1, 1, 0, 3, 17.5),
    Sketcher.Constraint("DistanceY", 1, 3, -1, 1, 8.75),
    Sketcher.Constraint("DistanceX", -1, 1, 1, 3, 15.1554),
])
pocket10 = body.newObject("PartDesign::Pocket", "Pocket009")
pocket10.Profile = sketch16
pocket10.Type = "ThroughAll"
pocket10.Reversed = True

sketch17 = body.newObject("Sketcher::SketchObject", "Sketch016")
sketch17.AttachmentSupport = (doc.getObject("XY_Plane"), [""])
sketch17.MapMode = "FlatFace"
sketch17.AttachmentOffset = App.Placement(App.Vector(0, 0, 5), App.Rotation())
sketch17.addGeometry([
    Part.Circle(App.Vector(0, 0, 0), App.Vector(0, 0, 1), 29),
    Part.Circle(App.Vector(15.9, -15.9, 0), App.Vector(0, 0, 1), 2.2),
    Part.Circle(App.Vector(15.2, -8.8, 0), App.Vector(0, 0, 1), 2),
    Part.Circle(App.Vector(0, -22.5, 0), App.Vector(0, 0, 1), 2.2),
    Part.Circle(App.Vector(-15.9, -15.9, 0), App.Vector(0, 0, 1), 2.2),
    Part.Circle(App.Vector(-15.2, -8.8, 0), App.Vector(0, 0, 1), 2),
    Part.Circle(App.Vector(22.5, 0, 0), App.Vector(0, 0, 1), 2.2),
    Part.Circle(App.Vector(15.9, 15.9, 0), App.Vector(0, 0, 1), 2.2),
    Part.Circle(App.Vector(0, 0, 0), App.Vector(0, 0, 1), 3.5),
    Part.Circle(App.Vector(-22.5, 0, 0), App.Vector(0, 0, 1), 2.2),
    Part.Circle(App.Vector(0, 17.5, 0), App.Vector(0, 0, 1), 2),
    Part.Circle(App.Vector(0, 22.5, 0), App.Vector(0, 0, 1), 2.2),
    Part.Circle(App.Vector(-15.9, 15.9, 0), App.Vector(0, 0, 1), 2.2),
], False)
sketch17.addConstraint([
    Sketcher.Constraint("Coincident", 0, 3, -1, 1),
    Sketcher.Constraint("Coincident", 8, 3, -1, 1),
    Sketcher.Constraint("Equal", 1, 3),
    Sketcher.Constraint("Equal", 3, 4),
    Sketcher.Constraint("Equal", 2, 5),
    Sketcher.Constraint("Equal", 4, 6),
    Sketcher.Constraint("Equal", 6, 7),
    Sketcher.Constraint("Equal", 7, 9),
    Sketcher.Constraint("Equal", 5, 10),
    Sketcher.Constraint("Equal", 9, 11),
    Sketcher.Constraint("Equal", 11, 12),
    Sketcher.Constraint("Symmetric", 4, 3, 7, 3, -1, 1),
    Sketcher.Constraint("Symmetric", 6, 3, 9, 3, -1, 1),
    Sketcher.Constraint("Symmetric", 3, 3, 11, 3, -1, 1),
    Sketcher.Constraint("Symmetric", 1, 3, 12, 3, -1, 1),
    Sketcher.Constraint("Symmetric", 1, 3, 4, 3, -2),
    Sketcher.Constraint("Symmetric", 2, 3, 5, 3, -2),
    Sketcher.Constraint("PointOnObject", 3, 3, -2),
    Sketcher.Constraint("PointOnObject", 6, 3, -1),
    Sketcher.Constraint("PointOnObject", 10, 3, -2),
    Sketcher.Constraint("Diameter", 0, 58.0),
    Sketcher.Constraint("Diameter", 2, 4.0),
    Sketcher.Constraint("Diameter", 8, 7.0),
    Sketcher.Constraint("Diameter", 1, 4.5),
    Sketcher.Constraint("DistanceY", 10, 3, 11, 3, 5.0),
    Sketcher.Constraint("DistanceY", 3, 3, -1, 1, 22.5),
    Sketcher.Constraint("DistanceX", -1, 1, 6, 3, 22.5),
    Sketcher.Constraint("DistanceX", -1, 1, 1, 3, 15.91),
    Sketcher.Constraint("DistanceY", 1, 3, -1, 1, 15.91),
    Sketcher.Constraint("DistanceY", 2, 3, -1, 1, 8.75),
    Sketcher.Constraint("DistanceX", -1, 1, 2, 3, 15.1554),
])
pocket11 = body.newObject("PartDesign::Pocket", "Pocket010")
pocket11.Profile = sketch17
pocket11.Length = 5
pocket11.Reversed = True

sketch18 = body.newObject("Sketcher::SketchObject", "Sketch017")
sketch18.AttachmentSupport = (doc.getObject("XY_Plane"), [""])
sketch18.MapMode = "FlatFace"
sketch18.AttachmentOffset = App.Placement(App.Vector(0, 0, 10), App.Rotation())
sketch18.addGeometry([
    Part.Circle(App.Vector(0, 0, 0), App.Vector(0, 0, 1), 13.5),
    Part.Circle(App.Vector(0, 0, 0), App.Vector(0, 0, 1), 3.5),
], False)
sketch18.addConstraint([
    Sketcher.Constraint("Coincident", 0, 3, -1, 1),
    Sketcher.Constraint("Coincident", 1, 3, -1, 1),
    Sketcher.Constraint("Diameter", 0, 27.0),
    Sketcher.Constraint("Diameter", 1, 7.0),
])
pocket12 = body.newObject("PartDesign::Pocket", "Pocket011")
pocket12.Profile = sketch18
pocket12.Length = 7
pocket12.Reversed = True

sketch19 = body.newObject("Sketcher::SketchObject", "Sketch018")
sketch19.AttachmentSupport = (doc.getObject("XY_Plane"), [""])
sketch19.MapMode = "FlatFace"
sketch19.AttachmentOffset = App.Placement(App.Vector(0, 0, 29), App.Rotation())
add_polygon(sketch19, [(-68, 0), (-34, -59), (34, -59), (68, 0), (34, 59), (-34, 59)])
sketch19.addGeometry(Part.Circle(App.Vector(0, 0, 0), App.Vector(0, 0, 1), 49), False)
sketch19.addConstraint([
    Sketcher.Constraint("Horizontal", 1),
    Sketcher.Constraint("Horizontal", 4),
    Sketcher.Constraint("Coincident", 6, 3, -1, 1),
    Sketcher.Constraint("Symmetric", 0, 2, 3, 2, -1, 1),
    Sketcher.Constraint("Symmetric", 2, 2, 5, 2, -1, 1),
    Sketcher.Constraint("PointOnObject", 2, 2, -1),
    Sketcher.Constraint("Parallel", 2, 5),
    Sketcher.Constraint("Vertical", 1, 2, 3, 2),
    Sketcher.Constraint("Diameter", 6, 98.0),
    Sketcher.Constraint("Angle", 0, Q("-60 deg")),
    Sketcher.Constraint("DistanceY", 0, 2, -1, 1, 59.0),
    Sketcher.Constraint("DistanceX", 1, 1, 1, 2, 68.1274),
])
pad7 = body.newObject("PartDesign::Pad", "Pad006")
pad7.Profile = sketch19
pad7.Length = 1

doc.recompute()
